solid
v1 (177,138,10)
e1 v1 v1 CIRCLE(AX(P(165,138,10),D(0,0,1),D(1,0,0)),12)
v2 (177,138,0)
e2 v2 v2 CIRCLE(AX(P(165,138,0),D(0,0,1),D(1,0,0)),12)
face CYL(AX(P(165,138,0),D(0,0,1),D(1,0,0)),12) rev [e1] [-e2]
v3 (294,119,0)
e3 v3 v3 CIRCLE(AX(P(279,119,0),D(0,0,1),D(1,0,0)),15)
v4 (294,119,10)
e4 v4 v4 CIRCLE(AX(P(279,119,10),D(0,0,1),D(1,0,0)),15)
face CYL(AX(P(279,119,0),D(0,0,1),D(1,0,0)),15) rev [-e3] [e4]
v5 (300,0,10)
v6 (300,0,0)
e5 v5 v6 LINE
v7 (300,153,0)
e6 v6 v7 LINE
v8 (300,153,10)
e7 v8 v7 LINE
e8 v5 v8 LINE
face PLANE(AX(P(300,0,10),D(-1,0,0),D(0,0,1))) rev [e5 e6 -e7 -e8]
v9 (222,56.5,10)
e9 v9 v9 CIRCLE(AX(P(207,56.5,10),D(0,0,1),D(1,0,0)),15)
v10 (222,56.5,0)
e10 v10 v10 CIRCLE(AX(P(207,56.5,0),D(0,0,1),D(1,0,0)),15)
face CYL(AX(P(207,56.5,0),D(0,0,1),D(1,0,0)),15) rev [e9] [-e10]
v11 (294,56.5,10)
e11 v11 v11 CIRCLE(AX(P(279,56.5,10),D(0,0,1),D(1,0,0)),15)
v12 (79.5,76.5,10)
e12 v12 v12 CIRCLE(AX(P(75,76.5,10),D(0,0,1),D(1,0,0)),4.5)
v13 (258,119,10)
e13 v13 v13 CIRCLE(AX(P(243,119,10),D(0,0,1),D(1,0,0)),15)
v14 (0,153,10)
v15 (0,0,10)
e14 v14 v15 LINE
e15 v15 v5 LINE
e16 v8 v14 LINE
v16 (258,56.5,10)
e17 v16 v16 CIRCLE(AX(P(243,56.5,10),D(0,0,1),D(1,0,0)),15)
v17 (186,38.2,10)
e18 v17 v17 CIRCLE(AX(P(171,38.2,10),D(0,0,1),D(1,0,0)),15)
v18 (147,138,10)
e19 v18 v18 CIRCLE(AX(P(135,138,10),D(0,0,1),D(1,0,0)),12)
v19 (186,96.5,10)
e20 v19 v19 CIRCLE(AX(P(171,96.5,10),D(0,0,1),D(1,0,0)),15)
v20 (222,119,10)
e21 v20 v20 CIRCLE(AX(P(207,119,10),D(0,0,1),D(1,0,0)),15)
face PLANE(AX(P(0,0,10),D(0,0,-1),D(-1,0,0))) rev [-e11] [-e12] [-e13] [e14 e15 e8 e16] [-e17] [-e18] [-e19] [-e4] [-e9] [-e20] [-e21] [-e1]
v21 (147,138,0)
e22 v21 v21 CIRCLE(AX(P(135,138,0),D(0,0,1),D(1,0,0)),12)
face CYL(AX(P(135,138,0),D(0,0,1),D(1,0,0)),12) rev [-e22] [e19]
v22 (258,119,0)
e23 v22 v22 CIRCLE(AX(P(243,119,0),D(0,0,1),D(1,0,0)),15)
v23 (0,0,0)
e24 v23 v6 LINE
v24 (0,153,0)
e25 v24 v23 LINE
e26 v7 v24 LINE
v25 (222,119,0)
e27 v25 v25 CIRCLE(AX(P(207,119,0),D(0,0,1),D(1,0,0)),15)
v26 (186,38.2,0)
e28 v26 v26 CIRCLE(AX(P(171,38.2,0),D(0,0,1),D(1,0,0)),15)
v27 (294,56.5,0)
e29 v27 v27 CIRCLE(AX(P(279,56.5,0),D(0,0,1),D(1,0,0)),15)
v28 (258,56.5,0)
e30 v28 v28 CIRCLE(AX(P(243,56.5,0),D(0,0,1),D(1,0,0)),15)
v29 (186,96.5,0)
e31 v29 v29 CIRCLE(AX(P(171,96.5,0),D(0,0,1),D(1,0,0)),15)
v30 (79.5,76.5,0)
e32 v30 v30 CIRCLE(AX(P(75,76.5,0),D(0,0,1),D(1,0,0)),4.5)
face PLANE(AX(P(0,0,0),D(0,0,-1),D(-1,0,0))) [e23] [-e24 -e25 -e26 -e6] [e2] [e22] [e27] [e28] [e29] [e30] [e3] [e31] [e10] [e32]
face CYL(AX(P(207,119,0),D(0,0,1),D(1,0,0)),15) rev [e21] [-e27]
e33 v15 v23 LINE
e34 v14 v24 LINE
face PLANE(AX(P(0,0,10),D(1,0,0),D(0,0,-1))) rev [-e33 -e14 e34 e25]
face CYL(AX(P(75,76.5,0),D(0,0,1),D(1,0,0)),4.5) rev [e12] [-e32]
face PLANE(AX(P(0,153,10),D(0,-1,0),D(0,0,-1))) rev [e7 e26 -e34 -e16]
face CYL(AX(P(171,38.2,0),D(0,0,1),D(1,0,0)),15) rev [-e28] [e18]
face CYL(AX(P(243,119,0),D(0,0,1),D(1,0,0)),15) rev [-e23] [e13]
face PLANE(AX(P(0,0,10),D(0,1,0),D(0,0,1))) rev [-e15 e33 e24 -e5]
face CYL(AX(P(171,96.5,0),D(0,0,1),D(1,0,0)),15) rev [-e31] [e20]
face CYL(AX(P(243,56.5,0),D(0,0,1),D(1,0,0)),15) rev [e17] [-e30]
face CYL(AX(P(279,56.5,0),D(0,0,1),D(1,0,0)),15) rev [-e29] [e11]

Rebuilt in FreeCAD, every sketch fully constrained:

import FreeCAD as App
import Part
import Sketcher

V = App.Vector
Q = App.Units.Quantity

doc = App.newDocument("Part")
params = doc.addObject("Spreadsheet::Sheet", "Params")
for row, (alias, value) in enumerate([
    ("sketch1_width", "300 mm"),
    ("sketch1_height", "153 mm"),
    ("pad1_length", "10 mm"),
    ("sketch2_diameter", "30 mm"),
    ("sketch3_diameter", "30 mm"),
    ("sketch4_diameter", "30 mm"),
    ("sketch5_diameter", "30 mm"),
    ("sketch6_diameter", "30 mm"),
    ("sketch7_diameter", "30 mm"),
    ("sketch8_diameter", "30 mm"),
    ("sketch9_diameter", "30 mm"),
    ("sketch10_diameter", "24 mm"),
    ("sketch11_diameter", "24 mm"),
    ("sketch12_diameter", "9 mm"),
], start=1):
    params.set(f"A{row}", alias)
    params.set(f"B{row}", "=" + value)
    params.setAlias(f"B{row}", alias)

body = doc.addObject("PartDesign::Body", "Body")

sketch1 = body.newObject("Sketcher::SketchObject", "Sketch")
sketch1.AttachmentSupport = (doc.getObject("XY_Plane"), [""])
sketch1.MapMode = "FlatFace"
sketch1.addGeometry(Part.LineSegment(V(0, 153, 0), V(0, 0, 0)), False)
sketch1.addGeometry(Part.LineSegment(V(0, 0, 0), V(300, 0, 0)), False)
sketch1.addGeometry(Part.LineSegment(V(300, 0, 0), V(300, 153, 0)), False)
sketch1.addGeometry(Part.LineSegment(V(300, 153, 0), V(0, 153, 0)), False)
sketch1.addConstraint(Sketcher.Constraint("Coincident", 0, 2, 1, 1))
sketch1.addConstraint(Sketcher.Constraint("Coincident", 1, 2, 2, 1))
sketch1.addConstraint(Sketcher.Constraint("Coincident", 2, 2, 3, 1))
sketch1.addConstraint(Sketcher.Constraint("Coincident", 3, 2, 0, 1))
sketch1.addConstraint(Sketcher.Constraint("Vertical", 0))
sketch1.addConstraint(Sketcher.Constraint("Horizontal", 1))
sketch1.addConstraint(Sketcher.Constraint("Vertical", 2))
sketch1.addConstraint(Sketcher.Constraint("Horizontal", 3))
sketch1.addConstraint(Sketcher.Constraint("Coincident", 0, 2, -1, 1))
sketch1.addConstraint(Sketcher.Constraint("DistanceX", 1, 1, 1, 2, Q("300 mm")))
sketch1.addConstraint(Sketcher.Constraint("DistanceY", 0, 2, 0, 1, Q("153 mm")))
sketch1.setExpression("Constraints[9]", "Params.sketch1_width")
sketch1.setExpression("Constraints[10]", "Params.sketch1_height")
pad1 = body.newObject("PartDesign::Pad", "Pad")
pad1.Profile = sketch1
pad1.setExpression("Length", "Params.pad1_length")

sketch2 = body.newObject("Sketcher::SketchObject", "Sketch001")
sketch2.AttachmentSupport = (doc.getObject("XY_Plane"), [""])
sketch2.MapMode = "FlatFace"
sketch2.AttachmentOffset = App.Placement(V(0, 0, 10), App.Rotation())
sketch2.addGeometry(Part.Circle(V(171, 96, 0), V(0, 0, 1), 15), False)
sketch2.addConstraint(Sketcher.Constraint("Diameter", 0, Q("30 mm")))
sketch2.addConstraint(Sketcher.Constraint("DistanceX", -1, 1, 0, 3, Q("171 mm")))
sketch2.addConstraint(Sketcher.Constraint("DistanceY", -1, 1, 0, 3, Q("96.5 mm")))
sketch2.setExpression("Constraints[0]", "Params.sketch2_diameter")
pocket1 = body.newObject("PartDesign::Pocket", "Pocket")
pocket1.Profile = sketch2
pocket1.Type = "ThroughAll"

sketch3 = body.newObject("Sketcher::SketchObject", "Sketch002")
sketch3.AttachmentSupport = (doc.getObject("XY_Plane"), [""])
sketch3.MapMode = "FlatFace"
sketch3.AttachmentOffset = App.Placement(V(0, 0, 10), App.Rotation())
sketch3.addGeometry(Part.Circle(V(207, 119, 0), V(0, 0, 1), 15), False)
sketch3.addConstraint(Sketcher.Constraint("Diameter", 0, Q("30 mm")))
sketch3.addConstraint(Sketcher.Constraint("DistanceX", -1, 1, 0, 3, Q("207 mm")))
sketch3.addConstraint(Sketcher.Constraint("DistanceY", -1, 1, 0, 3, Q("119 mm")))
sketch3.setExpression("Constraints[0]", "Params.sketch3_diameter")
pocket2 = body.newObject("PartDesign::Pocket", "Pocket001")
pocket2.Profile = sketch3
pocket2.Type = "ThroughAll"

sketch4 = body.newObject("Sketcher::SketchObject", "Sketch003")
sketch4.AttachmentSupport = (doc.getObject("XY_Plane"), [""])
sketch4.MapMode = "FlatFace"
sketch4.AttachmentOffset = App.Placement(V(0, 0, 10), App.Rotation())
sketch4.addGeometry(Part.Circle(V(243, 119, 0), V(0, 0, 1), 15), False)
sketch4.addConstraint(Sketcher.Constraint("Diameter", 0, Q("30 mm")))
sketch4.addConstraint(Sketcher.Constraint("DistanceX", -1, 1, 0, 3, Q("243 mm")))
sketch4.addConstraint(Sketcher.Constraint("DistanceY", -1, 1, 0, 3, Q("119 mm")))
sketch4.setExpression("Constraints[0]", "Params.sketch4_diameter")
pocket3 = body.newObject("PartDesign::Pocket", "Pocket002")
pocket3.Profile = sketch4
pocket3.Type = "ThroughAll"

sketch5 = body.newObject("Sketcher::SketchObject", "Sketch004")
sketch5.AttachmentSupport = (doc.getObject("XY_Plane"), [""])
sketch5.MapMode = "FlatFace"
sketch5.AttachmentOffset = App.Placement(V(0, 0, 10), App.Rotation())
sketch5.addGeometry(Part.Circle(V(279, 119, 0), V(0, 0, 1), 15), False)
sketch5.addConstraint(Sketcher.Constraint("Diameter", 0, Q("30 mm")))
sketch5.addConstraint(Sketcher.Constraint("DistanceX", -1, 1, 0, 3, Q("279 mm")))
sketch5.addConstraint(Sketcher.Constraint("DistanceY", -1, 1, 0, 3, Q("119 mm")))
sketch5.setExpression("Constraints[0]", "Params.sketch5_diameter")
pocket4 = body.newObject("PartDesign::Pocket", "Pocket003")
pocket4.Profile = sketch5
pocket4.Type = "ThroughAll"

sketch6 = body.newObject("Sketcher::SketchObject", "Sketch005")
sketch6.AttachmentSupport = (doc.getObject("XY_Plane"), [""])
sketch6.MapMode = "FlatFace"
sketch6.AttachmentOffset = App.Placement(V(0, 0, 10), App.Rotation())
sketch6.addGeometry(Part.Circle(V(171, 38, 0), V(0, 0, 1), 15), False)
sketch6.addConstraint(Sketcher.Constraint("Diameter", 0, Q("30 mm")))
sketch6.addConstraint(Sketcher.Constraint("DistanceX", -1, 1, 0, 3, Q("171 mm")))
sketch6.addConstraint(Sketcher.Constraint("DistanceY", -1, 1, 0, 3, Q("38.2 mm")))
sketch6.setExpression("Constraints[0]", "Params.sketch6_diameter")
pocket5 = body.newObject("PartDesign::Pocket", "Pocket004")
pocket5.Profile = sketch6
pocket5.Type = "ThroughAll"

sketch7 = body.newObject("Sketcher::SketchObject", "Sketch006")
sketch7.AttachmentSupport = (doc.getObject("XY_Plane"), [""])
sketch7.MapMode = "FlatFace"
sketch7.AttachmentOffset = App.Placement(V(0, 0, 10), App.Rotation())
sketch7.addGeometry(Part.Circle(V(207, 56, 0), V(0, 0, 1), 15), False)
sketch7.addConstraint(Sketcher.Constraint("Diameter", 0, Q("30 mm")))
sketch7.addConstraint(Sketcher.Constraint("DistanceX", -1, 1, 0, 3, Q("207 mm")))
sketch7.addConstraint(Sketcher.Constraint("DistanceY", -1, 1, 0, 3, Q("56.5 mm")))
sketch7.setExpression("Constraints[0]", "Params.sketch7_diameter")
pocket6 = body.newObject("PartDesign::Pocket", "Pocket005")
pocket6.Profile = sketch7
pocket6.Type = "ThroughAll"

sketch8 = body.newObject("Sketcher::SketchObject", "Sketch007")
sketch8.AttachmentSupport = (doc.getObject("XY_Plane"), [""])
sketch8.MapMode = "FlatFace"
sketch8.AttachmentOffset = App.Placement(V(0, 0, 10), App.Rotation())
sketch8.addGeometry(Part.Circle(V(243, 56, 0), V(0, 0, 1), 15), False)
sketch8.addConstraint(Sketcher.Constraint("Diameter", 0, Q("30 mm")))
sketch8.addConstraint(Sketcher.Constraint("DistanceX", -1, 1, 0, 3, Q("243 mm")))
sketch8.addConstraint(Sketcher.Constraint("DistanceY", -1, 1, 0, 3, Q("56.5 mm")))
sketch8.setExpression("Constraints[0]", "Params.sketch8_diameter")
pocket7 = body.newObject("PartDesign::Pocket", "Pocket006")
pocket7.Profile = sketch8
pocket7.Type = "ThroughAll"

sketch9 = body.newObject("Sketcher::SketchObject", "Sketch008")
sketch9.AttachmentSupport = (doc.getObject("XY_Plane"), [""])
sketch9.MapMode = "FlatFace"
sketch9.AttachmentOffset = App.Placement(V(0, 0, 10), App.Rotation())
sketch9.addGeometry(Part.Circle(V(279, 56, 0), V(0, 0, 1), 15), False)
sketch9.addConstraint(Sketcher.Constraint("Diameter", 0, Q("30 mm")))
sketch9.addConstraint(Sketcher.Constraint("DistanceX", -1, 1, 0, 3, Q("279 mm")))
sketch9.addConstraint(Sketcher.Constraint("DistanceY", -1, 1, 0, 3, Q("56.5 mm")))
sketch9.setExpression("Constraints[0]", "Params.sketch9_diameter")
pocket8 = body.newObject("PartDesign::Pocket", "Pocket007")
pocket8.Profile = sketch9
pocket8.Type = "ThroughAll"

sketch10 = body.newObject("Sketcher::SketchObject", "Sketch009")
sketch10.AttachmentSupport = (doc.getObject("XY_Plane"), [""])
sketch10.MapMode = "FlatFace"
sketch10.AttachmentOffset = App.Placement(V(0, 0, 10), App.Rotation())
sketch10.addGeometry(Part.Circle(V(165, 138, 0), V(0, 0, 1), 12), False)
sketch10.addConstraint(Sketcher.Constraint("Diameter", 0, Q("24 mm")))
sketch10.addConstraint(Sketcher.Constraint("DistanceX", -1, 1, 0, 3, Q("165 mm")))
sketch10.addConstraint(Sketcher.Constraint("DistanceY", -1, 1, 0, 3, Q("138 mm")))
sketch10.setExpression("Constraints[0]", "Params.sketch10_diameter")
pocket9 = body.newObject("PartDesign::Pocket", "Pocket008")
pocket9.Profile = sketch10
pocket9.Type = "ThroughAll"

sketch11 = body.newObject("Sketcher::SketchObject", "Sketch010")
sketch11.AttachmentSupport = (doc.getObject("XY_Plane"), [""])
sketch11.MapMode = "FlatFace"
sketch11.AttachmentOffset = App.Placement(V(0, 0, 10), App.Rotation())
sketch11.addGeometry(Part.Circle(V(135, 138, 0), V(0, 0, 1), 12), False)
sketch11.addConstraint(Sketcher.Constraint("Diameter", 0, Q("24 mm")))
sketch11.addConstraint(Sketcher.Constraint("DistanceX", -1, 1, 0, 3, Q("135 mm")))
sketch11.addConstraint(Sketcher.Constraint("DistanceY", -1, 1, 0, 3, Q("138 mm")))
sketch11.setExpression("Constraints[0]", "Params.sketch11_diameter")
pocket10 = body.newObject("PartDesign::Pocket", "Pocket009")
pocket10.Profile = sketch11
pocket10.Type = "ThroughAll"

sketch12 = body.newObject("Sketcher::SketchObject", "Sketch011")
sketch12.AttachmentSupport = (doc.getObject("XY_Plane"), [""])
sketch12.MapMode = "FlatFace"
sketch12.AttachmentOffset = App.Placement(V(0, 0, 10), App.Rotation())
sketch12.addGeometry(Part.Circle(V(75, 76.5, 0), V(0, 0, 1), 4.5), False)
sketch12.addConstraint(Sketcher.Constraint("Diameter", 0, Q("9 mm")))
sketch12.addConstraint(Sketcher.Constraint("DistanceX", -1, 1, 0, 3, Q("75 mm")))
sketch12.addConstraint(Sketcher.Constraint("DistanceY", -1, 1, 0, 3, Q("76.5 mm")))
sketch12.setExpression("Constraints[0]", "Params.sketch12_diameter")
pocket11 = body.newObject("PartDesign::Pocket", "Pocket010")
pocket11.Profile = sketch12
pocket11.Type = "ThroughAll"

doc.recompute()
